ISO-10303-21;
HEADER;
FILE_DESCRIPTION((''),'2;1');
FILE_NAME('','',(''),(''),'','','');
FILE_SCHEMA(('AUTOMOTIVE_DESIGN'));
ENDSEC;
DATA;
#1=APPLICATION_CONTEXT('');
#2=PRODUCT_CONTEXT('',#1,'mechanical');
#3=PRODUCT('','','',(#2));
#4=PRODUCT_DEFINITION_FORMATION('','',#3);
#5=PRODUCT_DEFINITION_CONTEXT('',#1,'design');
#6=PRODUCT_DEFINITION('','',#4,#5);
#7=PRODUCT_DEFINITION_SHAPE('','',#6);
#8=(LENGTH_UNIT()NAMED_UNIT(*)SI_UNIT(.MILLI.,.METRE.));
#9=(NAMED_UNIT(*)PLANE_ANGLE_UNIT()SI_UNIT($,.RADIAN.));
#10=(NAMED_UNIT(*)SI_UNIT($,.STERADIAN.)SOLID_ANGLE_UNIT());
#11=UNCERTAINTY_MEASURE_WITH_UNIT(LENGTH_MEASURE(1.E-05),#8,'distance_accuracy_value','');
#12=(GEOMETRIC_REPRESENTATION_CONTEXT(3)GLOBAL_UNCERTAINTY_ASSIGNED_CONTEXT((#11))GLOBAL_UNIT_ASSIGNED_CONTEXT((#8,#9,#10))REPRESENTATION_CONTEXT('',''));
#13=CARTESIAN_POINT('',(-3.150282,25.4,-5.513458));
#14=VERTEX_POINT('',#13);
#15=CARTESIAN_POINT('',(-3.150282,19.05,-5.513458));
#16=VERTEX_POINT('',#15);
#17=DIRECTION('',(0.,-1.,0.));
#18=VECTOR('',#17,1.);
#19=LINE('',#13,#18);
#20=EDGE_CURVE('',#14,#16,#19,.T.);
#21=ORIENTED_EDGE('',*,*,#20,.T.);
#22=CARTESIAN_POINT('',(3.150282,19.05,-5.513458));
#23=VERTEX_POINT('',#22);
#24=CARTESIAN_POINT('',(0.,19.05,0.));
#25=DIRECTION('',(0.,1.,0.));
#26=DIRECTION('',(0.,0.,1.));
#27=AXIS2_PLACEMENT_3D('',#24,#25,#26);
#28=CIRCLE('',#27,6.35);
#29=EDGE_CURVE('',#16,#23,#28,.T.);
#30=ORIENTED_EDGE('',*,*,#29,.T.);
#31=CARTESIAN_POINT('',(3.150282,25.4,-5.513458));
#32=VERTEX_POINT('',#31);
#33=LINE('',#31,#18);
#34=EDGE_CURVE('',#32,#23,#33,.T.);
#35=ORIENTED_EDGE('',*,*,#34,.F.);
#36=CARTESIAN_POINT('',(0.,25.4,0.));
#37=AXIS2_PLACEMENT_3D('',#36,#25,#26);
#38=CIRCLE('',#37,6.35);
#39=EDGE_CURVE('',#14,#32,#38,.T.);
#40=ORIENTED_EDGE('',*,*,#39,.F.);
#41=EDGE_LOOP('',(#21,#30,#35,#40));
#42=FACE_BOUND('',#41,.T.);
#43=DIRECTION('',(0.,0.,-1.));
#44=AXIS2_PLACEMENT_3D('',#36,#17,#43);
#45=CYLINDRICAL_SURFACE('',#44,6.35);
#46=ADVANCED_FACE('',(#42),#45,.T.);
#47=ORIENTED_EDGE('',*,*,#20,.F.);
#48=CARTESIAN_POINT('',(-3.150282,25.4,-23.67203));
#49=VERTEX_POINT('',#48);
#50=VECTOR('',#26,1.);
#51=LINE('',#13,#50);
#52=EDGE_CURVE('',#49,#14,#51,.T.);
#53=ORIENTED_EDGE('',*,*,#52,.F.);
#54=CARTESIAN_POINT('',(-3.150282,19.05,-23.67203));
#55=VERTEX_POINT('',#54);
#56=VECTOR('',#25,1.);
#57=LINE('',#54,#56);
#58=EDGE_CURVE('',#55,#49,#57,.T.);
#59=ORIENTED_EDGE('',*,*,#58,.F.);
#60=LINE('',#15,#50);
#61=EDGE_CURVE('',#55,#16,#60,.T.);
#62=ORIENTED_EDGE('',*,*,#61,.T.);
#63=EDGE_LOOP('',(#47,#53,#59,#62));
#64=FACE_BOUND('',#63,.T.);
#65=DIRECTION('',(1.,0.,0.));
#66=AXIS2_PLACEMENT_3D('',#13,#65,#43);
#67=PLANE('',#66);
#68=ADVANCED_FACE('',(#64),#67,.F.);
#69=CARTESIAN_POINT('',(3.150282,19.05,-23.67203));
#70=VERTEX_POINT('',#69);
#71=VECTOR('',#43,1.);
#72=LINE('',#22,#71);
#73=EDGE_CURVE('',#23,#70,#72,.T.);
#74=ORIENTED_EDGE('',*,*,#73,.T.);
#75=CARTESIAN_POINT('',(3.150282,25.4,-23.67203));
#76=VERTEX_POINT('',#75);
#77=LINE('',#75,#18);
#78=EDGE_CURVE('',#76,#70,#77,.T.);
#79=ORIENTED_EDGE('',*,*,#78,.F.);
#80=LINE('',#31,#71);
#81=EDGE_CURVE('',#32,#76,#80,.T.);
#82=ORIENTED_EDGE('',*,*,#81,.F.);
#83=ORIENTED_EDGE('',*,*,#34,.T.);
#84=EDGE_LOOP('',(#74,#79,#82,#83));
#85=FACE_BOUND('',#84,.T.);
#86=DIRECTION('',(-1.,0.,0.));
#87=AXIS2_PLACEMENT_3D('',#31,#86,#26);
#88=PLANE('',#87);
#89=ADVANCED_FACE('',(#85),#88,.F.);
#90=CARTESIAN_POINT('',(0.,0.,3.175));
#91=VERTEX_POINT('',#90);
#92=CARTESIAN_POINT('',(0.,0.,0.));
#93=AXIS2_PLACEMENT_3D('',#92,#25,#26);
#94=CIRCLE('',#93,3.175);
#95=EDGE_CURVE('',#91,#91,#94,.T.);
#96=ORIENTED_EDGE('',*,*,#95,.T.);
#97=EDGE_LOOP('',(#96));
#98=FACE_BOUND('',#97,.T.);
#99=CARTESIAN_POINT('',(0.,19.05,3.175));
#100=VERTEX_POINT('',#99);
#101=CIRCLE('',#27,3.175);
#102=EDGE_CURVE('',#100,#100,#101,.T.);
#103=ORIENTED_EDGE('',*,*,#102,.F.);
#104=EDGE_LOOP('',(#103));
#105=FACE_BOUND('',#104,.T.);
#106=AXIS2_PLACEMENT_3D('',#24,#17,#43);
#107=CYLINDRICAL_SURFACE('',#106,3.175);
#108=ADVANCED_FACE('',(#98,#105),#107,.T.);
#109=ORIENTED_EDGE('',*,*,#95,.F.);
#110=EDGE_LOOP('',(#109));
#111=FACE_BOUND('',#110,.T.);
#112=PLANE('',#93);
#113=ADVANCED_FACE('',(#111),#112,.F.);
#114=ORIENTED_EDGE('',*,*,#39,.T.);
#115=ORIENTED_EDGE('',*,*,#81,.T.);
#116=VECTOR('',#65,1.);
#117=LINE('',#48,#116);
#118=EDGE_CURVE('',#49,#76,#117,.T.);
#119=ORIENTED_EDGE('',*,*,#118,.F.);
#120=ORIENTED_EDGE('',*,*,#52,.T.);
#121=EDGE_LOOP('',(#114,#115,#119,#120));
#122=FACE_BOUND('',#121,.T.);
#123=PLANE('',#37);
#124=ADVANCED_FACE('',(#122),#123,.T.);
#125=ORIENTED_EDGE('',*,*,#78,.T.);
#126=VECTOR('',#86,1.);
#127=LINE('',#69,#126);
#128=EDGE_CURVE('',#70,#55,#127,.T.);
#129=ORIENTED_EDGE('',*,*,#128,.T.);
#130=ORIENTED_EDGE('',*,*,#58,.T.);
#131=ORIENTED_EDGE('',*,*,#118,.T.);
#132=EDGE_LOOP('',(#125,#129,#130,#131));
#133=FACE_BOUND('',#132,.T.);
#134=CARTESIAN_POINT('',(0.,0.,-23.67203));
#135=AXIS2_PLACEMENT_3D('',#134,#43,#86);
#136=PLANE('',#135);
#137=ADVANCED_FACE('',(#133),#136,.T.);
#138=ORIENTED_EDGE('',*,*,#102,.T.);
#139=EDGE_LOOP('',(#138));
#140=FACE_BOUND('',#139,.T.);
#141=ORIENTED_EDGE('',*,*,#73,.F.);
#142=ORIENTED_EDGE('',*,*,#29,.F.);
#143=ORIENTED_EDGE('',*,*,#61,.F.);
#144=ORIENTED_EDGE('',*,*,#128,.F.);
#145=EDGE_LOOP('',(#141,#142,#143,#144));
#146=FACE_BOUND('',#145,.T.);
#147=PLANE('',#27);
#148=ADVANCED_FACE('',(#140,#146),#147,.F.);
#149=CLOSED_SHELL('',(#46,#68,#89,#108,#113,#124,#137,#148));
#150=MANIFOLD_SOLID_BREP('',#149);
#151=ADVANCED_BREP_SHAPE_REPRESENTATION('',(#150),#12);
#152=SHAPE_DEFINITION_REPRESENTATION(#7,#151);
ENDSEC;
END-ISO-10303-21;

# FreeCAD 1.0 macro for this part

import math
import FreeCAD as App
import Part
import Sketcher
from FreeCAD import Vector
Q = App.Units.Quantity


def add_polygon(sketch, points):
    """Adds a closed chain of lines whose ends are joined by coincident constraints."""
    first, n = sketch.GeometryCount, len(points)
    for a, b in zip(points, points[1:] + points[:1]):
        sketch.addGeometry(Part.LineSegment(App.Vector(*a, 0), App.Vector(*b, 0)), False)
    for i in range(n):
        sketch.addConstraint(Sketcher.Constraint("Coincident", first + i, 2, first + (i + 1) % n, 1))

doc = App.newDocument("Part")
body = doc.addObject("PartDesign::Body", "Body")

# Sketch on XZ plane
sketch1 = doc.addObject("Sketcher::SketchObject", "Sketch")
body.addObject(sketch1)
sketch1.AttachmentSupport = (doc.XZ_Plane, [""])
sketch1.MapMode = "FlatFace"
sketch1.addGeometry(Part.Circle(Vector(0, 0, 0), Vector(0, 0, 1), 3.2), False)
sketch1.addConstraint(Sketcher.Constraint("Coincident", 0, 3, -1, 1))
sketch1.addConstraint(Sketcher.Constraint("Diameter", 0, Q("0.25 in")))
pad1 = doc.addObject("PartDesign::Pad", "Pad")
body.addObject(pad1)
pad1.Profile = sketch1
pad1.Length = Q("0.75 in")
pad1.Reversed = True

# Sketch on XZ plane
sketch2 = doc.addObject("Sketcher::SketchObject", "Sketch001")
body.addObject(sketch2)
sketch2.AttachmentSupport = (doc.XZ_Plane, [""])
sketch2.MapMode = "FlatFace"
sketch2.AttachmentOffset = App.Placement(Vector(0, 0, -0.75 * 25.4), App.Rotation())
sketch2.addGeometry(Part.LineSegment(Vector(3.2, -5.5, 0), Vector(3.2, -8.7, 0)), False)
sketch2.addGeometry(Part.LineSegment(Vector(3.2, -8.7, 0), Vector(-3.2, -8.7, 0)), False)
sketch2.addGeometry(Part.LineSegment(Vector(-3.2, -8.7, 0), Vector(-3.2, -5.5, 0)), False)
sketch2.addGeometry(Part.ArcOfCircle(Part.Circle(Vector(0, 0, 0), Vector(0, 0, 1), 6.3), math.radians(-60), math.radians(240)), False)
sketch2.addConstraint(Sketcher.Constraint("Coincident", 0, 2, 1, 1))
sketch2.addConstraint(Sketcher.Constraint("Coincident", 1, 2, 2, 1))
sketch2.addConstraint(Sketcher.Constraint("Coincident", 2, 2, 3, 2))
sketch2.addConstraint(Sketcher.Constraint("Coincident", 3, 1, 0, 1))
sketch2.addConstraint(Sketcher.Constraint("Vertical", 0))
sketch2.addConstraint(Sketcher.Constraint("Horizontal", 1))
sketch2.addConstraint(Sketcher.Constraint("Vertical", 2))
sketch2.addConstraint(Sketcher.Constraint("Coincident", 3, 3, -1, 1))
sketch2.addConstraint(Sketcher.Constraint("Horizontal", 2, 2, 3, 1))
sketch2.addConstraint(Sketcher.Constraint("Radius", 3, Q("0.25 in")))
sketch2.addConstraint(Sketcher.Constraint("DistanceY", 0, 2, 0, 1, 3.172572))
sketch2.addConstraint(Sketcher.Constraint("DistanceX", 1, 2, 1, 1, 6.300564))
pad2 = doc.addObject("PartDesign::Pad", "Pad001")
body.addObject(pad2)
pad2.Profile = sketch2
pad2.Length = Q("0.25 in")
pad2.Reversed = True

# Sketch on XY plane
sketch3 = doc.addObject("Sketcher::SketchObject", "Sketch002")
body.addObject(sketch3)
sketch3.AttachmentSupport = (doc.XY_Plane, [""])
sketch3.MapMode = "FlatFace"
sketch3.AttachmentOffset = App.Placement(Vector(0, 0, -8.68603), App.Rotation())
add_polygon(sketch3, [(3, 25), (3, 19), (-3, 19), (-3, 25)])  # lines 0-3
sketch3.addConstraint(Sketcher.Constraint("Vertical", 0))
sketch3.addConstraint(Sketcher.Constraint("Horizontal", 1))
sketch3.addConstraint(Sketcher.Constraint("Vertical", 2))
sketch3.addConstraint(Sketcher.Constraint("Horizontal", 3))
sketch3.addConstraint(Sketcher.Constraint("DistanceY", -1, 1, 2, 2, Q("1 in")))
sketch3.addConstraint(Sketcher.Constraint("DistanceY", 0, 2, 0, 1, Q("0.25 in")))
sketch3.addConstraint(Sketcher.Constraint("DistanceX", 1, 2, 1, 1, 6.300564))
sketch3.addConstraint(Sketcher.Constraint("DistanceX", -1, 1, 0, 2, 3.150282))
pad3 = doc.addObject("PartDesign::Pad", "Pad002")
body.addObject(pad3)
pad3.Profile = sketch3
pad3.Length = Q("0.59 in")
pad3.Reversed = True

doc.recompute()
